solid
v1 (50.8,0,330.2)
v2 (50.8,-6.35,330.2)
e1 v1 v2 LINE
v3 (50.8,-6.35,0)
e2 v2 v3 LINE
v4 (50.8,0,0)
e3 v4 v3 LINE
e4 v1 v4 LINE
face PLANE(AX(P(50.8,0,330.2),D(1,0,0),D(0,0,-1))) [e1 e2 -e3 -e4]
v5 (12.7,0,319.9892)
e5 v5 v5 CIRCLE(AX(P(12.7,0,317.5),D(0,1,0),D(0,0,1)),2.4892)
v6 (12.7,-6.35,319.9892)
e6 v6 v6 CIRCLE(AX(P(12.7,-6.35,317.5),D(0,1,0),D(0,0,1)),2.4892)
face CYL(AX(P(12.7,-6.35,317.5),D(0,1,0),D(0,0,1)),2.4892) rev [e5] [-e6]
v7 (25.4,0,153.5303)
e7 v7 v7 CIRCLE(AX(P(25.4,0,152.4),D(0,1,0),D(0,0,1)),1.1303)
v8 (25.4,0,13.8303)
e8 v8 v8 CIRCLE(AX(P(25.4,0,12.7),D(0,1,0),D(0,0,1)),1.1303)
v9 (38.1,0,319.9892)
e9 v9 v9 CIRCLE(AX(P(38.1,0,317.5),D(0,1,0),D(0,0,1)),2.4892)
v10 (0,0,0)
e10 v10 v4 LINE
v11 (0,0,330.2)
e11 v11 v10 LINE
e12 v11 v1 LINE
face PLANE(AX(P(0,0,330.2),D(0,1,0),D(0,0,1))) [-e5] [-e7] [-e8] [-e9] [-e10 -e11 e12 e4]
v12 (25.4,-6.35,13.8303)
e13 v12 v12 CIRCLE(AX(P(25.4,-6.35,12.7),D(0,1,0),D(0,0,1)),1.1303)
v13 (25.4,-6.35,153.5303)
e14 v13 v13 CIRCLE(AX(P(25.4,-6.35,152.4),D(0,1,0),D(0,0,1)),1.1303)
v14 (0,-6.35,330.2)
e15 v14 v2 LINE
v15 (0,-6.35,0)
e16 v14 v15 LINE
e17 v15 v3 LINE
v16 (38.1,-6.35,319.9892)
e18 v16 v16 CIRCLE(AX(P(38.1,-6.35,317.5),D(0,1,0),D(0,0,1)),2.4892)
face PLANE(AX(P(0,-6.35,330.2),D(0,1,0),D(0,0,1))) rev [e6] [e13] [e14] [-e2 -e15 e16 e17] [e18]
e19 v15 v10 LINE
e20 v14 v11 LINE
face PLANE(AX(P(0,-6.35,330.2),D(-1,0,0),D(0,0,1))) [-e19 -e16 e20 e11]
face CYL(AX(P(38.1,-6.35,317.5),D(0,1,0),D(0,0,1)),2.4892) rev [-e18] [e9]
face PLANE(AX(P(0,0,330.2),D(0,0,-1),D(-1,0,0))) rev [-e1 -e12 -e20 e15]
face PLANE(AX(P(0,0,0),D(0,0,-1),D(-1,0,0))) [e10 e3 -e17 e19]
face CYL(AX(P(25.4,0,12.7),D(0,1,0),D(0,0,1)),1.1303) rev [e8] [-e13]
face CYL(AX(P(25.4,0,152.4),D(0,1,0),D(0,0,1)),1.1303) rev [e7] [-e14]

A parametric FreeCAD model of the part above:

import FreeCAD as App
import Part
import Sketcher
Q = App.Units.Quantity


def add_polygon(sketch, points):
    """Adds a closed chain of lines whose ends are joined by coincident constraints."""
    first, n = sketch.GeometryCount, len(points)
    for a, b in zip(points, points[1:] + points[:1]):
        sketch.addGeometry(Part.LineSegment(App.Vector(*a, 0), App.Vector(*b, 0)), False)
    for i in range(n):
        sketch.addConstraint(Sketcher.Constraint("Coincident", first + i, 2, first + (i + 1) % n, 1))

doc = App.newDocument("Part")
body = doc.addObject("PartDesign::Body", "Body")

# Sketch on XY plane
sketch1 = doc.addObject("Sketcher::SketchObject", "Sketch")
body.addObject(sketch1)
sketch1.AttachmentSupport = (doc.XY_Plane, [""])
sketch1.MapMode = "FlatFace"
add_polygon(sketch1, [(0, 0), (0, -6), (51, -6), (51, 0)])  # lines 0-3
sketch1.addConstraint(Sketcher.Constraint("Vertical", 0))
sketch1.addConstraint(Sketcher.Constraint("Horizontal", 1))
sketch1.addConstraint(Sketcher.Constraint("Vertical", 2))
sketch1.addConstraint(Sketcher.Constraint("Horizontal", 3))
sketch1.addConstraint(Sketcher.Constraint("Coincident", 3, 2, -1, 1))
sketch1.addConstraint(Sketcher.Constraint("DistanceX", 1, 1, 1, 2, Q("2 in")))
sketch1.addConstraint(Sketcher.Constraint("DistanceY", 0, 2, 0, 1, Q("0.25 in")))
pad1 = doc.addObject("PartDesign::Pad", "Pad")
body.addObject(pad1)
pad1.Profile = sketch1
pad1.Length = Q("13 in")

# Sketch on XZ plane
sketch2 = doc.addObject("Sketcher::SketchObject", "Sketch001")
body.addObject(sketch2)
sketch2.AttachmentSupport = (doc.XZ_Plane, [""])
sketch2.MapMode = "FlatFace"
sketch2.addGeometry(Part.Circle(App.Vector(12.7, 317.5, 0), App.Vector(0, 0, 1), 2.5), False)
sketch2.addGeometry(Part.Circle(App.Vector(38.1, 317.5, 0), App.Vector(0, 0, 1), 2.5), False)
sketch2.addConstraint(Sketcher.Constraint("Equal", 0, 1))
sketch2.addConstraint(Sketcher.Constraint("Horizontal", 0, 3, 1, 3))
sketch2.addConstraint(Sketcher.Constraint("Diameter", 0, Q("0.196 in")))
sketch2.addConstraint(Sketcher.Constraint("DistanceX", 0, 3, 1, 3, Q("1 in")))
sketch2.addConstraint(Sketcher.Constraint("DistanceX", -1, 1, 0, 3, Q("0.5 in")))
sketch2.addConstraint(Sketcher.Constraint("DistanceY", -1, 1, 0, 3, Q("12.5 in")))
pocket1 = doc.addObject("PartDesign::Pocket", "Pocket")
body.addObject(pocket1)
pocket1.Profile = sketch2
pocket1.Type = "ThroughAll"
pocket1.Reversed = True

# Sketch on XZ plane
sketch3 = doc.addObject("Sketcher::SketchObject", "Sketch002")
body.addObject(sketch3)
sketch3.AttachmentSupport = (doc.XZ_Plane, [""])
sketch3.MapMode = "FlatFace"
sketch3.addGeometry(Part.Circle(App.Vector(25.4, 152.4, 0), App.Vector(0, 0, 1), 1.1), False)
sketch3.addGeometry(Part.Circle(App.Vector(25.4, 12.7, 0), App.Vector(0, 0, 1), 1.1), False)
sketch3.addConstraint(Sketcher.Constraint("Equal", 0, 1))
sketch3.addConstraint(Sketcher.Constraint("Vertical", 0, 3, 1, 3))
sketch3.addConstraint(Sketcher.Constraint("Diameter", 0, Q("0.089 in")))
sketch3.addConstraint(Sketcher.Constraint("DistanceX", -1, 1, 0, 3, Q("1 in")))
sketch3.addConstraint(Sketcher.Constraint("DistanceY", -1, 1, 0, 3, Q("6 in")))
sketch3.addConstraint(Sketcher.Constraint("DistanceY", -1, 1, 1, 3, Q("0.5 in")))
doc.recompute()
hole = doc.addObject("PartDesign::Hole", "Hole")
body.addObject(hole)
hole.Profile = sketch3
hole.ThreadType = "None"
hole.Diameter = Q("0.089 in")
hole.DepthType = "Dimension"
hole.Depth = Q("0.3 in")
hole.DrillPoint = "Angled"
hole.DrillPointAngle = 118
hole.Reversed = True

doc.recompute()
